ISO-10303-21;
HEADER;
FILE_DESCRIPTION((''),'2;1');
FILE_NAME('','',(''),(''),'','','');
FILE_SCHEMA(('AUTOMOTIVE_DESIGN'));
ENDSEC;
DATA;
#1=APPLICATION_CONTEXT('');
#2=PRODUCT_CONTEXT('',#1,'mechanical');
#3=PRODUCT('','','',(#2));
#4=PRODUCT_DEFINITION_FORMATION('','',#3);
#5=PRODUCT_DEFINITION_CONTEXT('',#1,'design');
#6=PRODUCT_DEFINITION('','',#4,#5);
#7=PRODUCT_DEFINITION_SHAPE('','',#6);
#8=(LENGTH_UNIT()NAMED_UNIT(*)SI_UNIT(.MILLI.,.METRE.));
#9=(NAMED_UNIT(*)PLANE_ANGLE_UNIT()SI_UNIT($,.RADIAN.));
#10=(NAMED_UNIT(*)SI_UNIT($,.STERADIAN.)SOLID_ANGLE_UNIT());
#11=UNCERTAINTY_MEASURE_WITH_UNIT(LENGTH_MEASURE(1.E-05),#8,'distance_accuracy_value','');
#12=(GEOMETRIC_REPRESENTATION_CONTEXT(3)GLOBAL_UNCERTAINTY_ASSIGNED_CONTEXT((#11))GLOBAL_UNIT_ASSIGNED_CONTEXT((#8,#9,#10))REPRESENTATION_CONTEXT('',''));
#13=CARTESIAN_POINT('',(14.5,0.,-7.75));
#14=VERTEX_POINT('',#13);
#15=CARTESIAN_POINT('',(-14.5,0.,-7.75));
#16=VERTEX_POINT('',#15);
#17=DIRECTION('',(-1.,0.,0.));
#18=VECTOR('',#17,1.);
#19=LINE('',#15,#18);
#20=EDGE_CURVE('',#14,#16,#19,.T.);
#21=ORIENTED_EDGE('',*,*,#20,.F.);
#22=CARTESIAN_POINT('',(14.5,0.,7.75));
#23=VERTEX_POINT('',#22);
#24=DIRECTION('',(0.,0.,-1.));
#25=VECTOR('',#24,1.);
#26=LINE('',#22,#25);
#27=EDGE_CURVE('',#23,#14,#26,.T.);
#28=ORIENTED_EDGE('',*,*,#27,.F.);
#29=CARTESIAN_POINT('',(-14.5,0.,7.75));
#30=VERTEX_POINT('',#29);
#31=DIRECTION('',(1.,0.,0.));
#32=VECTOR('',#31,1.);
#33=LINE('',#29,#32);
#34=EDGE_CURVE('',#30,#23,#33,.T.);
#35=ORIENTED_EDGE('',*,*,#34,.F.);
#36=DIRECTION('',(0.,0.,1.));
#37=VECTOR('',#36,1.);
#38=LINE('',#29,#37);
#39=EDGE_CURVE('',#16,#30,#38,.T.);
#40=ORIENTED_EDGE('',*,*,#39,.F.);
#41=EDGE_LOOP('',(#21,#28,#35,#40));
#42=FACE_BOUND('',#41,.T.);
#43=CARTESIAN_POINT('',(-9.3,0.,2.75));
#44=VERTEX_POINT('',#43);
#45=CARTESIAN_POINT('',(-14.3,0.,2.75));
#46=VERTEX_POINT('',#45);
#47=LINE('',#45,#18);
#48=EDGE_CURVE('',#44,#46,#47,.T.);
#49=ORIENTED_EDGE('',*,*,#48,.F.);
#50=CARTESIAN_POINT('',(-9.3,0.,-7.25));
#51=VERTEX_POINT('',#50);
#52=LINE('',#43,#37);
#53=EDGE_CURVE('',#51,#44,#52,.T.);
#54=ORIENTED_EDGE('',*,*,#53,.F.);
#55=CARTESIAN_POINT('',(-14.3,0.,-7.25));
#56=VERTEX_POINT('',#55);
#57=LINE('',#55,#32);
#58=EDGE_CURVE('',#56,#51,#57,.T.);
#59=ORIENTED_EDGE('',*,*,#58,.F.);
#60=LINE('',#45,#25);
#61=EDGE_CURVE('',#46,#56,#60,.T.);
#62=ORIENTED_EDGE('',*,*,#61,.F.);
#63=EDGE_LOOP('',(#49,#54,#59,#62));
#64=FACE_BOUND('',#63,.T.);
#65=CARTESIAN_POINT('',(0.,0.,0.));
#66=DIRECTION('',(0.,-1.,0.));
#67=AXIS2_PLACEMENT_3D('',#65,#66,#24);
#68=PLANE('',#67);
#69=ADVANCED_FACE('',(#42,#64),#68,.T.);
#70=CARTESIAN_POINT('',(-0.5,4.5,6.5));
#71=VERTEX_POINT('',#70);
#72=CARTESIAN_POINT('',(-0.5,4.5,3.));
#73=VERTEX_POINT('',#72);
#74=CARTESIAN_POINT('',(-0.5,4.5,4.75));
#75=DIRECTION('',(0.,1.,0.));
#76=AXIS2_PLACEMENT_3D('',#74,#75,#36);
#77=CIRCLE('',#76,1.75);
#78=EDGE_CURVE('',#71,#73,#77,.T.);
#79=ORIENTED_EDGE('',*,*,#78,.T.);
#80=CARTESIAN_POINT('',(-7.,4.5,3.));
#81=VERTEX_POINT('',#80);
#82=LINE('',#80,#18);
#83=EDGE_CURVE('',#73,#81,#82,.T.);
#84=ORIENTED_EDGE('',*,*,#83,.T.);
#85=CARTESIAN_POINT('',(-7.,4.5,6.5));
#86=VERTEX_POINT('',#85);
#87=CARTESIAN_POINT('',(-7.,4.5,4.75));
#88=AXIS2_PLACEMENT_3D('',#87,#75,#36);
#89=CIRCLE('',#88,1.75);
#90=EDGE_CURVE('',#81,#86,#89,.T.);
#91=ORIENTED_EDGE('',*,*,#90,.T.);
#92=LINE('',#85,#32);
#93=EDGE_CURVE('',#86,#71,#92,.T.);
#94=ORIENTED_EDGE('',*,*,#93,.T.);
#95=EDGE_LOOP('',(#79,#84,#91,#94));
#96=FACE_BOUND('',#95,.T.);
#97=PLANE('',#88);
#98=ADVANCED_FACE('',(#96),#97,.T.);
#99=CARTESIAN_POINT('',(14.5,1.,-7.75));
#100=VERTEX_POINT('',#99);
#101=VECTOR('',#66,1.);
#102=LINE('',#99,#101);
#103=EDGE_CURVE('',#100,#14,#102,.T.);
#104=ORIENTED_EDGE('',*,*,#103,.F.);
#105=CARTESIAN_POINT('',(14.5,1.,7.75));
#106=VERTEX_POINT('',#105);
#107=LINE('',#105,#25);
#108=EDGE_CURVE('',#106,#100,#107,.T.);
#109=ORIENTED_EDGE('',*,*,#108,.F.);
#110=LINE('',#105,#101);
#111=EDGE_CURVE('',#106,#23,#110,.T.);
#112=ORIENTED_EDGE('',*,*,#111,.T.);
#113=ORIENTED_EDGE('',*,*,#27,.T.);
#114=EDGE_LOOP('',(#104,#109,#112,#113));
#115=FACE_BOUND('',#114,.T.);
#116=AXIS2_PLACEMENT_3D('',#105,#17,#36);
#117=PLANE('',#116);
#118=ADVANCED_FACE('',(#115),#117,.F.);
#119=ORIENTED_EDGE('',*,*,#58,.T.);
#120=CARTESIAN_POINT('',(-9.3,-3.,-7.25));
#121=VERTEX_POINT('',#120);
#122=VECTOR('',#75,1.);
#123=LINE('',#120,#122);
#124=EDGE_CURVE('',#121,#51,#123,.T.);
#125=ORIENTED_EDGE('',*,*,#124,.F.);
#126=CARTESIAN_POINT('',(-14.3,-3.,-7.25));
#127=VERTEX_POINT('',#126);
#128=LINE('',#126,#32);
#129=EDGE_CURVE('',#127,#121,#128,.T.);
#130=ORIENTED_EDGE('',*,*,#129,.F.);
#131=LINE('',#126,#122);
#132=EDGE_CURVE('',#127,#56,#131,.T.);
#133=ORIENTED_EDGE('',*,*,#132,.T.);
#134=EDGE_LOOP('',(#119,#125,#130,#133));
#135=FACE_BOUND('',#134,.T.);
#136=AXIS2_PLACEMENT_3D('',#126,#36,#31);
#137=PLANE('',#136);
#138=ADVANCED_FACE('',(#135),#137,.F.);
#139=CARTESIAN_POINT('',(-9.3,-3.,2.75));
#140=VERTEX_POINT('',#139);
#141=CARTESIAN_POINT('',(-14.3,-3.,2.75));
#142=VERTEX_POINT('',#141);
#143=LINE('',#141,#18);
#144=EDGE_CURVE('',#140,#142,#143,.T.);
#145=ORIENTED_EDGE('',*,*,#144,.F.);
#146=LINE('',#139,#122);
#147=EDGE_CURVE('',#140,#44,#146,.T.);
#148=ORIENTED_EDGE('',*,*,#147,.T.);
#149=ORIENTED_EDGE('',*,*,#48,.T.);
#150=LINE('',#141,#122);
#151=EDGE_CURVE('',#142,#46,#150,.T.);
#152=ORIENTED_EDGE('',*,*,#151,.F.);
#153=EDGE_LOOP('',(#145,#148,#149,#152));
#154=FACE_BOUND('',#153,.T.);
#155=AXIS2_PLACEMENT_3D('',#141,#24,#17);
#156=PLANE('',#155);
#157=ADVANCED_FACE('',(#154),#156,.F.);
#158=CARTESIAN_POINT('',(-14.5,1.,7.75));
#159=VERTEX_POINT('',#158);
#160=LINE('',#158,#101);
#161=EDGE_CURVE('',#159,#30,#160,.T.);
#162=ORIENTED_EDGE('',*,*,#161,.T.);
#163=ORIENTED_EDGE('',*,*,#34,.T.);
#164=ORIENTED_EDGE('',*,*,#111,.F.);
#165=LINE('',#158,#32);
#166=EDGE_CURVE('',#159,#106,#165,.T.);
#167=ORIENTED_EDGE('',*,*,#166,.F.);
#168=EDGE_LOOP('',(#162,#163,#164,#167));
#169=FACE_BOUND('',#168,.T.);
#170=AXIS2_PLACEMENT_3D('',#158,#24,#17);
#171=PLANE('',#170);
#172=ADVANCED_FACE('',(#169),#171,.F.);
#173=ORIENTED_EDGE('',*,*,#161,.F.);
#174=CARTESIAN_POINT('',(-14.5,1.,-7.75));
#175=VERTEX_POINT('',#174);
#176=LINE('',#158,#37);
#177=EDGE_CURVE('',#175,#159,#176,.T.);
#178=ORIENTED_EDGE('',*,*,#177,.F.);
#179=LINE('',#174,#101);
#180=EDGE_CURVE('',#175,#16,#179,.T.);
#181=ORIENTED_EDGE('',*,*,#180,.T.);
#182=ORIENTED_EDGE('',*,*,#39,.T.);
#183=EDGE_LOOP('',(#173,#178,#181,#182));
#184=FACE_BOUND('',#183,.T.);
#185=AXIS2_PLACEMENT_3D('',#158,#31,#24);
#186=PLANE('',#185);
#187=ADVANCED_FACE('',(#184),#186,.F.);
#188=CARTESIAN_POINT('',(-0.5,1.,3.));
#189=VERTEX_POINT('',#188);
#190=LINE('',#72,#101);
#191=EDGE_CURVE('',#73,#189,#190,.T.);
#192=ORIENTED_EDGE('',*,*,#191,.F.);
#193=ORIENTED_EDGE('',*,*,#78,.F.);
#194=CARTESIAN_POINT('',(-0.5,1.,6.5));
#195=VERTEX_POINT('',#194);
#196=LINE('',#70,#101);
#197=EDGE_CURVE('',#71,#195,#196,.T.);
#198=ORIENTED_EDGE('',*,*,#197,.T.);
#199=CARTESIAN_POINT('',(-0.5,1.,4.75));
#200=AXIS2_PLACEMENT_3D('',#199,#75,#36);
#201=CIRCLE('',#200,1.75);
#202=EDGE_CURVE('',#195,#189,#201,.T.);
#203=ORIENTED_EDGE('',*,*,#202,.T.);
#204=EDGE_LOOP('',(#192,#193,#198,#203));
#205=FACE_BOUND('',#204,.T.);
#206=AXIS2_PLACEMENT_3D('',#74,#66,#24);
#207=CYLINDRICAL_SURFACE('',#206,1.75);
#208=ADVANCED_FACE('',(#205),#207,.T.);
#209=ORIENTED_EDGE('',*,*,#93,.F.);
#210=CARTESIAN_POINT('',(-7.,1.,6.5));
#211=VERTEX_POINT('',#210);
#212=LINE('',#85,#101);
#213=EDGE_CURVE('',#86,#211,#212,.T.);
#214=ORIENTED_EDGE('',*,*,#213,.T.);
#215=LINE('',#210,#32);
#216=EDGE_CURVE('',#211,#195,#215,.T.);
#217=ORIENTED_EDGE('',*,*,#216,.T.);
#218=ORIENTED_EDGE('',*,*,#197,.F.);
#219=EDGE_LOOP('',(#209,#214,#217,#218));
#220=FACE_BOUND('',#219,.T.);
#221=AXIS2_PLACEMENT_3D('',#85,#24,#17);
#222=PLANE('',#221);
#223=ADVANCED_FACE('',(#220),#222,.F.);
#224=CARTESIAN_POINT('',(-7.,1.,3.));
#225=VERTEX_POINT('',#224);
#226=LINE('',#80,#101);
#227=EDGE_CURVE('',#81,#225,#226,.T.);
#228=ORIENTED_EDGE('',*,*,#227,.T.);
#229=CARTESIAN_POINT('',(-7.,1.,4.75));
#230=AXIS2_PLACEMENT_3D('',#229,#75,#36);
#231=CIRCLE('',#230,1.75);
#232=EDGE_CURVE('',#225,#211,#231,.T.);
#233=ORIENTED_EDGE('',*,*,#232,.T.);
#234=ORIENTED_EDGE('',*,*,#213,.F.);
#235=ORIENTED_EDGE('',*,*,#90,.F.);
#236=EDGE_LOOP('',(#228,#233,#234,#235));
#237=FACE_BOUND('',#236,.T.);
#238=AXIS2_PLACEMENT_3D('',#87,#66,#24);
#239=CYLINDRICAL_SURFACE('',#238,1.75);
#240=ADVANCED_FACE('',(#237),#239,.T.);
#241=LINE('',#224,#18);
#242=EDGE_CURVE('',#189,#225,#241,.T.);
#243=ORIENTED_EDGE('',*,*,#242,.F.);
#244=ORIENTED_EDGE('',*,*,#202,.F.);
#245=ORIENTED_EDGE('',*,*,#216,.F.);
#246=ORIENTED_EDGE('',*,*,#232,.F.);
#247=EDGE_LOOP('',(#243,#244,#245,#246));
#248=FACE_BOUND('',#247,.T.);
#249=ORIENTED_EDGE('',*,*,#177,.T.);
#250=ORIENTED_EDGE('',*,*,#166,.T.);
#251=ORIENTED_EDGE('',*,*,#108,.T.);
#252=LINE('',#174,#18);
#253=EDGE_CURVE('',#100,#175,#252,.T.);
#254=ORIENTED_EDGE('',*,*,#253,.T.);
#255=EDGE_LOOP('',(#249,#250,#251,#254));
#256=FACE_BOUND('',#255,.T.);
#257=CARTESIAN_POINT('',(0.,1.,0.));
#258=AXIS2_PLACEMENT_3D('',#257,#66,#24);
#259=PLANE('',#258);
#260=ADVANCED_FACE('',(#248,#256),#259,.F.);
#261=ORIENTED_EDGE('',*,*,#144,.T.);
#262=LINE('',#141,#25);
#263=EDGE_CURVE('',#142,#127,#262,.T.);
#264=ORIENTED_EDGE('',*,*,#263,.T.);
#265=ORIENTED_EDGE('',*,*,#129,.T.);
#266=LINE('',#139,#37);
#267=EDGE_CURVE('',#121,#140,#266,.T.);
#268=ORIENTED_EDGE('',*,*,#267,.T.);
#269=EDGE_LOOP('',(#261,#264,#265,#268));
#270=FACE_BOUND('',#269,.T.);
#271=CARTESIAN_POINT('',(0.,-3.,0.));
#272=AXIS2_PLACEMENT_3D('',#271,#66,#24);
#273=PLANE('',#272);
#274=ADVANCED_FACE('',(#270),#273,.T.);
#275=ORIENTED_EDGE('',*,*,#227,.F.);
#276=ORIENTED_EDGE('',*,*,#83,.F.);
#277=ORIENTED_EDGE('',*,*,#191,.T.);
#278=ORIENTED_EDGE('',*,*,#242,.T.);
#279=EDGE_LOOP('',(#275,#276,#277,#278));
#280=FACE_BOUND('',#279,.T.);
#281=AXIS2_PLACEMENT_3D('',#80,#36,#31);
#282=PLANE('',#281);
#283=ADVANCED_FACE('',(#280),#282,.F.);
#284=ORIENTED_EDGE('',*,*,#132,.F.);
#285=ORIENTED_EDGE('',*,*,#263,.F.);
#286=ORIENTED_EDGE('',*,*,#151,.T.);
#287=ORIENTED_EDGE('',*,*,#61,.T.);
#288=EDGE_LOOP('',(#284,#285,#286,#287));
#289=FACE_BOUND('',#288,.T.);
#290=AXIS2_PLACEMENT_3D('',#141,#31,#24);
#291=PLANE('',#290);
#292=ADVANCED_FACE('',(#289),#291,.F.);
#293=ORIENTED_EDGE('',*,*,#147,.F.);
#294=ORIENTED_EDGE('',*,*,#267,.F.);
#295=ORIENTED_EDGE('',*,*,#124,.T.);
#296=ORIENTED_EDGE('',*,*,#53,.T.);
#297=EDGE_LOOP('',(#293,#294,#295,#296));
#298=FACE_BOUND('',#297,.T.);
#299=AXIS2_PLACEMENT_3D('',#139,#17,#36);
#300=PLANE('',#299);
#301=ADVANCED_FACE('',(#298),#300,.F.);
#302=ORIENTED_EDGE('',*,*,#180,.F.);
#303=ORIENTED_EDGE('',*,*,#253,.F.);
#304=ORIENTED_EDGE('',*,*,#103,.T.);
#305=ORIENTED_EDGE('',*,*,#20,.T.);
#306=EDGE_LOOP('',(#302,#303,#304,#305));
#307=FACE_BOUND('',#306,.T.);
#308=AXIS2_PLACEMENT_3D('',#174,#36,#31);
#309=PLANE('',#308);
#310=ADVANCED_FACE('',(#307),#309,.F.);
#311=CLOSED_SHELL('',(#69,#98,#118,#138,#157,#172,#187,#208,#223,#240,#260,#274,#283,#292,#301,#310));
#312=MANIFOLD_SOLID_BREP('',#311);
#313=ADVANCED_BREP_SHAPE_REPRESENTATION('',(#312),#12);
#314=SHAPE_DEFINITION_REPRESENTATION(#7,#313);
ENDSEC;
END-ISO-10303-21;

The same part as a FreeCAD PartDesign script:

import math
import FreeCAD as App
import Part
import Sketcher
from FreeCAD import Vector
Q = App.Units.Quantity

doc = App.newDocument("Part")
body = doc.addObject("PartDesign::Body", "Body")

# Sketch on XZ plane
sketch1 = body.newObject("Sketcher::SketchObject", "Sketch")
sketch1.AttachmentSupport = (doc.getObject("XZ_Plane"), [""])
sketch1.MapMode = "FlatFace"
sketch1.addGeometry([
    Part.LineSegment(Vector(-14, -8, 0), Vector(-14, 8, 0)),
    Part.LineSegment(Vector(-14, 8, 0), Vector(14, 8, 0)),
    Part.LineSegment(Vector(14, 8, 0), Vector(14, -8, 0)),
    Part.LineSegment(Vector(14, -8, 0), Vector(-14, -8, 0)),
], False)
sketch1.addConstraint([
    Sketcher.Constraint("Coincident", 0, 2, 1, 1),
    Sketcher.Constraint("Coincident", 1, 2, 2, 1),
    Sketcher.Constraint("Coincident", 2, 2, 3, 1),
    Sketcher.Constraint("Coincident", 3, 2, 0, 1),
    Sketcher.Constraint("Vertical", 0),
    Sketcher.Constraint("Horizontal", 1),
    Sketcher.Constraint("Vertical", 2),
    Sketcher.Constraint("Horizontal", 3),
    Sketcher.Constraint("Symmetric", 0, 2, 2, 2, -1, 1),
    Sketcher.Constraint("DistanceX", 1, 1, 1, 2, Q("29 mm")),
    Sketcher.Constraint("DistanceY", 0, 1, 0, 2, Q("15.5 mm")),
])
pad1 = body.newObject("PartDesign::Pad", "Pad")
pad1.Profile = sketch1
pad1.Length = 1
pad1.Reversed = True

# Sketch on XZ plane
sketch2 = body.newObject("Sketcher::SketchObject", "Sketch001")
sketch2.AttachmentSupport = (doc.getObject("XZ_Plane"), [""])
sketch2.MapMode = "FlatFace"
sketch2.AttachmentOffset = App.Placement(Vector(0, 0, -1), App.Rotation())
sketch2.addGeometry([
    Part.LineSegment(Vector(-0.5, 3, 0), Vector(-7, 3, 0)),
    Part.ArcOfCircle(Part.Circle(Vector(-7, 4.8, 0), Vector(0, 0, 1), 1.8), math.radians(90), math.radians(270)),
    Part.LineSegment(Vector(-7, 6.5, 0), Vector(-0.5, 6.5, 0)),
    Part.ArcOfCircle(Part.Circle(Vector(-0.5, 4.8, 0), Vector(0, 0, 1), 1.8), math.radians(-90), math.radians(90)),
], False)
sketch2.addConstraint([
    Sketcher.Constraint("Tangent", 0, 2, 1, 2),
    Sketcher.Constraint("Tangent", 1, 1, 2, 1),
    Sketcher.Constraint("Tangent", 2, 2, 3, 2),
    Sketcher.Constraint("Tangent", 3, 1, 0, 1),
    Sketcher.Constraint("Horizontal", 0),
    Sketcher.Constraint("Horizontal", 2),
    Sketcher.Constraint("Radius", 1, Q("1.75 mm")),
    Sketcher.Constraint("DistanceX", 0, 2, 0, 1, Q("6.5 mm")),
    Sketcher.Constraint("DistanceX", 1, 3, -1, 1, Q("7 mm")),
    Sketcher.Constraint("DistanceY", -1, 1, 0, 2, Q("3 mm")),
])
pad2 = body.newObject("PartDesign::Pad", "Pad001")
pad2.Profile = sketch2
pad2.Length = 3.5
pad2.Reversed = True

# Sketch on XZ plane
sketch3 = body.newObject("Sketcher::SketchObject", "Sketch002")
sketch3.AttachmentSupport = (doc.getObject("XZ_Plane"), [""])
sketch3.MapMode = "FlatFace"
sketch3.addGeometry([
    Part.LineSegment(Vector(-14, 3, 0), Vector(-14, -7, 0)),
    Part.LineSegment(Vector(-14, -7, 0), Vector(-9, -7, 0)),
    Part.LineSegment(Vector(-9, -7, 0), Vector(-9, 3, 0)),
    Part.LineSegment(Vector(-9, 3, 0), Vector(-14, 3, 0)),
], False)
sketch3.addConstraint([
    Sketcher.Constraint("Coincident", 0, 2, 1, 1),
    Sketcher.Constraint("Coincident", 1, 2, 2, 1),
    Sketcher.Constraint("Coincident", 2, 2, 3, 1),
    Sketcher.Constraint("Coincident", 3, 2, 0, 1),
    Sketcher.Constraint("Vertical", 0),
    Sketcher.Constraint("Horizontal", 1),
    Sketcher.Constraint("Vertical", 2),
    Sketcher.Constraint("Horizontal", 3),
    Sketcher.Constraint("DistanceX", 1, 1, 1, 2, Q("5 mm")),
    Sketcher.Constraint("DistanceY", 0, 2, 0, 1, Q("10 mm")),
    Sketcher.Constraint("DistanceX", 0, 2, -1, 1, Q("14.3 mm")),
    Sketcher.Constraint("DistanceY", 0, 2, -1, 1, Q("7.25 mm")),
])
pad3 = body.newObject("PartDesign::Pad", "Pad002")
pad3.Profile = sketch3
pad3.Length = 3

doc.recompute()
